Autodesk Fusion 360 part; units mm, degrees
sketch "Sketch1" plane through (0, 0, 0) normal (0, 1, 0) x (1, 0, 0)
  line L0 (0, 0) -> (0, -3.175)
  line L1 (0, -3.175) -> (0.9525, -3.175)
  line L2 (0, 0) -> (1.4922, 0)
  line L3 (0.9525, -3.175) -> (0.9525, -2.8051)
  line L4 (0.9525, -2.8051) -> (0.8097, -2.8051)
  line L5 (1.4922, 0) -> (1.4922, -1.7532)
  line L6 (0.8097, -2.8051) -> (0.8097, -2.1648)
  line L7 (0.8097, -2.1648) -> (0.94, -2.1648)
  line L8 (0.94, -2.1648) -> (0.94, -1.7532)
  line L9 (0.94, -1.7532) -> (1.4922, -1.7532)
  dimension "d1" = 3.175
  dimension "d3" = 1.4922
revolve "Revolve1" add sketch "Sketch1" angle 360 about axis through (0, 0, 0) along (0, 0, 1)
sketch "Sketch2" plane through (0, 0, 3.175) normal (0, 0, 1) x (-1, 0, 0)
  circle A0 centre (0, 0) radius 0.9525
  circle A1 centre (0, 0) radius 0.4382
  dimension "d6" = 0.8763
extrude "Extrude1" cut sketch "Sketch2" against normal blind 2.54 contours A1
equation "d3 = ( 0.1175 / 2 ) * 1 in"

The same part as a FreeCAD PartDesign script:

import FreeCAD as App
import Part
import Sketcher
from FreeCAD import Vector
Q = App.Units.Quantity

doc = App.newDocument("Part")
params = doc.addObject("Spreadsheet::Sheet", "Params")
for row, (alias, value) in enumerate([
    ("sketch1_height", "0.125 in"),
    ("revolution_angle", "360 deg"),
    ("pocket1_length", "0.1 in"),
], start=1):
    params.set(f"A{row}", alias)
    params.set(f"B{row}", "=" + value)
    params.setAlias(f"B{row}", alias)

body = doc.addObject("PartDesign::Body", "Body")

sketch1 = body.newObject("Sketcher::SketchObject", "Sketch")
sketch1.AttachmentSupport = (doc.getObject("XZ_Plane"), [""])
sketch1.MapMode = "FlatFace"
sketch1.addGeometry(Part.LineSegment(Vector(1.4922, 0, 0), Vector(0, 0, 0)), False)
sketch1.addGeometry(Part.LineSegment(Vector(0, 0, 0), Vector(0, 3.175, 0)), False)
sketch1.addGeometry(Part.LineSegment(Vector(0, 3.175, 0), Vector(0.9525, 3.175, 0)), False)
sketch1.addGeometry(Part.LineSegment(Vector(0.9525, 3.175, 0), Vector(0.9525, 2.8051, 0)), False)
sketch1.addGeometry(Part.LineSegment(Vector(0.9525, 2.8051, 0), Vector(0.8097, 2.8051, 0)), False)
sketch1.addGeometry(Part.LineSegment(Vector(0.8097, 2.8051, 0), Vector(0.8097, 2.1648, 0)), False)
sketch1.addGeometry(Part.LineSegment(Vector(0.8097, 2.1648, 0), Vector(0.94, 2.1648, 0)), False)
sketch1.addGeometry(Part.LineSegment(Vector(0.94, 2.1648, 0), Vector(0.94, 1.7532, 0)), False)
sketch1.addGeometry(Part.LineSegment(Vector(0.94, 1.7532, 0), Vector(1.4922, 1.7532, 0)), False)
sketch1.addGeometry(Part.LineSegment(Vector(1.4922, 1.7532, 0), Vector(1.4922, 0, 0)), False)
sketch1.addConstraint(Sketcher.Constraint("Coincident", 0, 2, 1, 1))
sketch1.addConstraint(Sketcher.Constraint("Coincident", 1, 2, 2, 1))
sketch1.addConstraint(Sketcher.Constraint("Coincident", 2, 2, 3, 1))
sketch1.addConstraint(Sketcher.Constraint("Coincident", 3, 2, 4, 1))
sketch1.addConstraint(Sketcher.Constraint("Coincident", 4, 2, 5, 1))
sketch1.addConstraint(Sketcher.Constraint("Coincident", 5, 2, 6, 1))
sketch1.addConstraint(Sketcher.Constraint("Coincident", 6, 2, 7, 1))
sketch1.addConstraint(Sketcher.Constraint("Coincident", 7, 2, 8, 1))
sketch1.addConstraint(Sketcher.Constraint("Coincident", 8, 2, 9, 1))
sketch1.addConstraint(Sketcher.Constraint("Coincident", 9, 2, 0, 1))
sketch1.addConstraint(Sketcher.Constraint("Horizontal", 0))
sketch1.addConstraint(Sketcher.Constraint("Vertical", 1))
sketch1.addConstraint(Sketcher.Constraint("Horizontal", 2))
sketch1.addConstraint(Sketcher.Constraint("Vertical", 3))
sketch1.addConstraint(Sketcher.Constraint("Horizontal", 4))
sketch1.addConstraint(Sketcher.Constraint("Vertical", 5))
sketch1.addConstraint(Sketcher.Constraint("Horizontal", 6))
sketch1.addConstraint(Sketcher.Constraint("Vertical", 7))
sketch1.addConstraint(Sketcher.Constraint("Horizontal", 8))
sketch1.addConstraint(Sketcher.Constraint("Vertical", 9))
sketch1.addConstraint(Sketcher.Constraint("Coincident", 0, 2, -1, 1))
sketch1.addConstraint(Sketcher.Constraint("DistanceY", 1, 1, 1, 2, Q("0.125 in")))
sketch1.addConstraint(Sketcher.Constraint("DistanceX", 0, 2, 0, 1, Q("1.4922 mm")))
sketch1.addConstraint(Sketcher.Constraint("DistanceX", 2, 1, 2, 2, Q("0.0375 in")))
sketch1.addConstraint(Sketcher.Constraint("DistanceY", 5, 2, 5, 1, Q("0.0252 in")))
sketch1.addConstraint(Sketcher.Constraint("DistanceY", 7, 2, 7, 1, Q("0.0162 in")))
sketch1.addConstraint(Sketcher.Constraint("DistanceX", -1, 1, 6, 2, Q("0.037 in")))
sketch1.addConstraint(Sketcher.Constraint("DistanceX", 4, 2, 4, 1, Q("0.1428 mm")))
sketch1.addConstraint(Sketcher.Constraint("DistanceY", 3, 2, 3, 1, Q("0.37 mm")))
sketch1.setExpression("Constraints[21]", "Params.sketch1_height")
revolution = body.newObject("PartDesign::Revolution", "Revolution")
revolution.Profile = sketch1
revolution.ReferenceAxis = (sketch1, ["V_Axis"])
revolution.setExpression("Angle", "Params.revolution_angle")

sketch2 = body.newObject("Sketcher::SketchObject", "Sketch001")
sketch2.AttachmentSupport = (doc.getObject("XY_Plane"), [""])
sketch2.MapMode = "FlatFace"
sketch2.AttachmentOffset = App.Placement(Vector(0, 0, 0.125 * 25.4), App.Rotation())
sketch2.addGeometry(Part.Circle(Vector(0, 0, 0), Vector(0, 0, 1), 0.4382), False)
sketch2.addConstraint(Sketcher.Constraint("Coincident", 0, 3, -1, 1))
sketch2.addConstraint(Sketcher.Constraint("Diameter", 0, Q("0.0345 in")))
pocket1 = body.newObject("PartDesign::Pocket", "Pocket")
pocket1.Profile = sketch2
pocket1.setExpression("Length", "Params.pocket1_length")

doc.recompute()
